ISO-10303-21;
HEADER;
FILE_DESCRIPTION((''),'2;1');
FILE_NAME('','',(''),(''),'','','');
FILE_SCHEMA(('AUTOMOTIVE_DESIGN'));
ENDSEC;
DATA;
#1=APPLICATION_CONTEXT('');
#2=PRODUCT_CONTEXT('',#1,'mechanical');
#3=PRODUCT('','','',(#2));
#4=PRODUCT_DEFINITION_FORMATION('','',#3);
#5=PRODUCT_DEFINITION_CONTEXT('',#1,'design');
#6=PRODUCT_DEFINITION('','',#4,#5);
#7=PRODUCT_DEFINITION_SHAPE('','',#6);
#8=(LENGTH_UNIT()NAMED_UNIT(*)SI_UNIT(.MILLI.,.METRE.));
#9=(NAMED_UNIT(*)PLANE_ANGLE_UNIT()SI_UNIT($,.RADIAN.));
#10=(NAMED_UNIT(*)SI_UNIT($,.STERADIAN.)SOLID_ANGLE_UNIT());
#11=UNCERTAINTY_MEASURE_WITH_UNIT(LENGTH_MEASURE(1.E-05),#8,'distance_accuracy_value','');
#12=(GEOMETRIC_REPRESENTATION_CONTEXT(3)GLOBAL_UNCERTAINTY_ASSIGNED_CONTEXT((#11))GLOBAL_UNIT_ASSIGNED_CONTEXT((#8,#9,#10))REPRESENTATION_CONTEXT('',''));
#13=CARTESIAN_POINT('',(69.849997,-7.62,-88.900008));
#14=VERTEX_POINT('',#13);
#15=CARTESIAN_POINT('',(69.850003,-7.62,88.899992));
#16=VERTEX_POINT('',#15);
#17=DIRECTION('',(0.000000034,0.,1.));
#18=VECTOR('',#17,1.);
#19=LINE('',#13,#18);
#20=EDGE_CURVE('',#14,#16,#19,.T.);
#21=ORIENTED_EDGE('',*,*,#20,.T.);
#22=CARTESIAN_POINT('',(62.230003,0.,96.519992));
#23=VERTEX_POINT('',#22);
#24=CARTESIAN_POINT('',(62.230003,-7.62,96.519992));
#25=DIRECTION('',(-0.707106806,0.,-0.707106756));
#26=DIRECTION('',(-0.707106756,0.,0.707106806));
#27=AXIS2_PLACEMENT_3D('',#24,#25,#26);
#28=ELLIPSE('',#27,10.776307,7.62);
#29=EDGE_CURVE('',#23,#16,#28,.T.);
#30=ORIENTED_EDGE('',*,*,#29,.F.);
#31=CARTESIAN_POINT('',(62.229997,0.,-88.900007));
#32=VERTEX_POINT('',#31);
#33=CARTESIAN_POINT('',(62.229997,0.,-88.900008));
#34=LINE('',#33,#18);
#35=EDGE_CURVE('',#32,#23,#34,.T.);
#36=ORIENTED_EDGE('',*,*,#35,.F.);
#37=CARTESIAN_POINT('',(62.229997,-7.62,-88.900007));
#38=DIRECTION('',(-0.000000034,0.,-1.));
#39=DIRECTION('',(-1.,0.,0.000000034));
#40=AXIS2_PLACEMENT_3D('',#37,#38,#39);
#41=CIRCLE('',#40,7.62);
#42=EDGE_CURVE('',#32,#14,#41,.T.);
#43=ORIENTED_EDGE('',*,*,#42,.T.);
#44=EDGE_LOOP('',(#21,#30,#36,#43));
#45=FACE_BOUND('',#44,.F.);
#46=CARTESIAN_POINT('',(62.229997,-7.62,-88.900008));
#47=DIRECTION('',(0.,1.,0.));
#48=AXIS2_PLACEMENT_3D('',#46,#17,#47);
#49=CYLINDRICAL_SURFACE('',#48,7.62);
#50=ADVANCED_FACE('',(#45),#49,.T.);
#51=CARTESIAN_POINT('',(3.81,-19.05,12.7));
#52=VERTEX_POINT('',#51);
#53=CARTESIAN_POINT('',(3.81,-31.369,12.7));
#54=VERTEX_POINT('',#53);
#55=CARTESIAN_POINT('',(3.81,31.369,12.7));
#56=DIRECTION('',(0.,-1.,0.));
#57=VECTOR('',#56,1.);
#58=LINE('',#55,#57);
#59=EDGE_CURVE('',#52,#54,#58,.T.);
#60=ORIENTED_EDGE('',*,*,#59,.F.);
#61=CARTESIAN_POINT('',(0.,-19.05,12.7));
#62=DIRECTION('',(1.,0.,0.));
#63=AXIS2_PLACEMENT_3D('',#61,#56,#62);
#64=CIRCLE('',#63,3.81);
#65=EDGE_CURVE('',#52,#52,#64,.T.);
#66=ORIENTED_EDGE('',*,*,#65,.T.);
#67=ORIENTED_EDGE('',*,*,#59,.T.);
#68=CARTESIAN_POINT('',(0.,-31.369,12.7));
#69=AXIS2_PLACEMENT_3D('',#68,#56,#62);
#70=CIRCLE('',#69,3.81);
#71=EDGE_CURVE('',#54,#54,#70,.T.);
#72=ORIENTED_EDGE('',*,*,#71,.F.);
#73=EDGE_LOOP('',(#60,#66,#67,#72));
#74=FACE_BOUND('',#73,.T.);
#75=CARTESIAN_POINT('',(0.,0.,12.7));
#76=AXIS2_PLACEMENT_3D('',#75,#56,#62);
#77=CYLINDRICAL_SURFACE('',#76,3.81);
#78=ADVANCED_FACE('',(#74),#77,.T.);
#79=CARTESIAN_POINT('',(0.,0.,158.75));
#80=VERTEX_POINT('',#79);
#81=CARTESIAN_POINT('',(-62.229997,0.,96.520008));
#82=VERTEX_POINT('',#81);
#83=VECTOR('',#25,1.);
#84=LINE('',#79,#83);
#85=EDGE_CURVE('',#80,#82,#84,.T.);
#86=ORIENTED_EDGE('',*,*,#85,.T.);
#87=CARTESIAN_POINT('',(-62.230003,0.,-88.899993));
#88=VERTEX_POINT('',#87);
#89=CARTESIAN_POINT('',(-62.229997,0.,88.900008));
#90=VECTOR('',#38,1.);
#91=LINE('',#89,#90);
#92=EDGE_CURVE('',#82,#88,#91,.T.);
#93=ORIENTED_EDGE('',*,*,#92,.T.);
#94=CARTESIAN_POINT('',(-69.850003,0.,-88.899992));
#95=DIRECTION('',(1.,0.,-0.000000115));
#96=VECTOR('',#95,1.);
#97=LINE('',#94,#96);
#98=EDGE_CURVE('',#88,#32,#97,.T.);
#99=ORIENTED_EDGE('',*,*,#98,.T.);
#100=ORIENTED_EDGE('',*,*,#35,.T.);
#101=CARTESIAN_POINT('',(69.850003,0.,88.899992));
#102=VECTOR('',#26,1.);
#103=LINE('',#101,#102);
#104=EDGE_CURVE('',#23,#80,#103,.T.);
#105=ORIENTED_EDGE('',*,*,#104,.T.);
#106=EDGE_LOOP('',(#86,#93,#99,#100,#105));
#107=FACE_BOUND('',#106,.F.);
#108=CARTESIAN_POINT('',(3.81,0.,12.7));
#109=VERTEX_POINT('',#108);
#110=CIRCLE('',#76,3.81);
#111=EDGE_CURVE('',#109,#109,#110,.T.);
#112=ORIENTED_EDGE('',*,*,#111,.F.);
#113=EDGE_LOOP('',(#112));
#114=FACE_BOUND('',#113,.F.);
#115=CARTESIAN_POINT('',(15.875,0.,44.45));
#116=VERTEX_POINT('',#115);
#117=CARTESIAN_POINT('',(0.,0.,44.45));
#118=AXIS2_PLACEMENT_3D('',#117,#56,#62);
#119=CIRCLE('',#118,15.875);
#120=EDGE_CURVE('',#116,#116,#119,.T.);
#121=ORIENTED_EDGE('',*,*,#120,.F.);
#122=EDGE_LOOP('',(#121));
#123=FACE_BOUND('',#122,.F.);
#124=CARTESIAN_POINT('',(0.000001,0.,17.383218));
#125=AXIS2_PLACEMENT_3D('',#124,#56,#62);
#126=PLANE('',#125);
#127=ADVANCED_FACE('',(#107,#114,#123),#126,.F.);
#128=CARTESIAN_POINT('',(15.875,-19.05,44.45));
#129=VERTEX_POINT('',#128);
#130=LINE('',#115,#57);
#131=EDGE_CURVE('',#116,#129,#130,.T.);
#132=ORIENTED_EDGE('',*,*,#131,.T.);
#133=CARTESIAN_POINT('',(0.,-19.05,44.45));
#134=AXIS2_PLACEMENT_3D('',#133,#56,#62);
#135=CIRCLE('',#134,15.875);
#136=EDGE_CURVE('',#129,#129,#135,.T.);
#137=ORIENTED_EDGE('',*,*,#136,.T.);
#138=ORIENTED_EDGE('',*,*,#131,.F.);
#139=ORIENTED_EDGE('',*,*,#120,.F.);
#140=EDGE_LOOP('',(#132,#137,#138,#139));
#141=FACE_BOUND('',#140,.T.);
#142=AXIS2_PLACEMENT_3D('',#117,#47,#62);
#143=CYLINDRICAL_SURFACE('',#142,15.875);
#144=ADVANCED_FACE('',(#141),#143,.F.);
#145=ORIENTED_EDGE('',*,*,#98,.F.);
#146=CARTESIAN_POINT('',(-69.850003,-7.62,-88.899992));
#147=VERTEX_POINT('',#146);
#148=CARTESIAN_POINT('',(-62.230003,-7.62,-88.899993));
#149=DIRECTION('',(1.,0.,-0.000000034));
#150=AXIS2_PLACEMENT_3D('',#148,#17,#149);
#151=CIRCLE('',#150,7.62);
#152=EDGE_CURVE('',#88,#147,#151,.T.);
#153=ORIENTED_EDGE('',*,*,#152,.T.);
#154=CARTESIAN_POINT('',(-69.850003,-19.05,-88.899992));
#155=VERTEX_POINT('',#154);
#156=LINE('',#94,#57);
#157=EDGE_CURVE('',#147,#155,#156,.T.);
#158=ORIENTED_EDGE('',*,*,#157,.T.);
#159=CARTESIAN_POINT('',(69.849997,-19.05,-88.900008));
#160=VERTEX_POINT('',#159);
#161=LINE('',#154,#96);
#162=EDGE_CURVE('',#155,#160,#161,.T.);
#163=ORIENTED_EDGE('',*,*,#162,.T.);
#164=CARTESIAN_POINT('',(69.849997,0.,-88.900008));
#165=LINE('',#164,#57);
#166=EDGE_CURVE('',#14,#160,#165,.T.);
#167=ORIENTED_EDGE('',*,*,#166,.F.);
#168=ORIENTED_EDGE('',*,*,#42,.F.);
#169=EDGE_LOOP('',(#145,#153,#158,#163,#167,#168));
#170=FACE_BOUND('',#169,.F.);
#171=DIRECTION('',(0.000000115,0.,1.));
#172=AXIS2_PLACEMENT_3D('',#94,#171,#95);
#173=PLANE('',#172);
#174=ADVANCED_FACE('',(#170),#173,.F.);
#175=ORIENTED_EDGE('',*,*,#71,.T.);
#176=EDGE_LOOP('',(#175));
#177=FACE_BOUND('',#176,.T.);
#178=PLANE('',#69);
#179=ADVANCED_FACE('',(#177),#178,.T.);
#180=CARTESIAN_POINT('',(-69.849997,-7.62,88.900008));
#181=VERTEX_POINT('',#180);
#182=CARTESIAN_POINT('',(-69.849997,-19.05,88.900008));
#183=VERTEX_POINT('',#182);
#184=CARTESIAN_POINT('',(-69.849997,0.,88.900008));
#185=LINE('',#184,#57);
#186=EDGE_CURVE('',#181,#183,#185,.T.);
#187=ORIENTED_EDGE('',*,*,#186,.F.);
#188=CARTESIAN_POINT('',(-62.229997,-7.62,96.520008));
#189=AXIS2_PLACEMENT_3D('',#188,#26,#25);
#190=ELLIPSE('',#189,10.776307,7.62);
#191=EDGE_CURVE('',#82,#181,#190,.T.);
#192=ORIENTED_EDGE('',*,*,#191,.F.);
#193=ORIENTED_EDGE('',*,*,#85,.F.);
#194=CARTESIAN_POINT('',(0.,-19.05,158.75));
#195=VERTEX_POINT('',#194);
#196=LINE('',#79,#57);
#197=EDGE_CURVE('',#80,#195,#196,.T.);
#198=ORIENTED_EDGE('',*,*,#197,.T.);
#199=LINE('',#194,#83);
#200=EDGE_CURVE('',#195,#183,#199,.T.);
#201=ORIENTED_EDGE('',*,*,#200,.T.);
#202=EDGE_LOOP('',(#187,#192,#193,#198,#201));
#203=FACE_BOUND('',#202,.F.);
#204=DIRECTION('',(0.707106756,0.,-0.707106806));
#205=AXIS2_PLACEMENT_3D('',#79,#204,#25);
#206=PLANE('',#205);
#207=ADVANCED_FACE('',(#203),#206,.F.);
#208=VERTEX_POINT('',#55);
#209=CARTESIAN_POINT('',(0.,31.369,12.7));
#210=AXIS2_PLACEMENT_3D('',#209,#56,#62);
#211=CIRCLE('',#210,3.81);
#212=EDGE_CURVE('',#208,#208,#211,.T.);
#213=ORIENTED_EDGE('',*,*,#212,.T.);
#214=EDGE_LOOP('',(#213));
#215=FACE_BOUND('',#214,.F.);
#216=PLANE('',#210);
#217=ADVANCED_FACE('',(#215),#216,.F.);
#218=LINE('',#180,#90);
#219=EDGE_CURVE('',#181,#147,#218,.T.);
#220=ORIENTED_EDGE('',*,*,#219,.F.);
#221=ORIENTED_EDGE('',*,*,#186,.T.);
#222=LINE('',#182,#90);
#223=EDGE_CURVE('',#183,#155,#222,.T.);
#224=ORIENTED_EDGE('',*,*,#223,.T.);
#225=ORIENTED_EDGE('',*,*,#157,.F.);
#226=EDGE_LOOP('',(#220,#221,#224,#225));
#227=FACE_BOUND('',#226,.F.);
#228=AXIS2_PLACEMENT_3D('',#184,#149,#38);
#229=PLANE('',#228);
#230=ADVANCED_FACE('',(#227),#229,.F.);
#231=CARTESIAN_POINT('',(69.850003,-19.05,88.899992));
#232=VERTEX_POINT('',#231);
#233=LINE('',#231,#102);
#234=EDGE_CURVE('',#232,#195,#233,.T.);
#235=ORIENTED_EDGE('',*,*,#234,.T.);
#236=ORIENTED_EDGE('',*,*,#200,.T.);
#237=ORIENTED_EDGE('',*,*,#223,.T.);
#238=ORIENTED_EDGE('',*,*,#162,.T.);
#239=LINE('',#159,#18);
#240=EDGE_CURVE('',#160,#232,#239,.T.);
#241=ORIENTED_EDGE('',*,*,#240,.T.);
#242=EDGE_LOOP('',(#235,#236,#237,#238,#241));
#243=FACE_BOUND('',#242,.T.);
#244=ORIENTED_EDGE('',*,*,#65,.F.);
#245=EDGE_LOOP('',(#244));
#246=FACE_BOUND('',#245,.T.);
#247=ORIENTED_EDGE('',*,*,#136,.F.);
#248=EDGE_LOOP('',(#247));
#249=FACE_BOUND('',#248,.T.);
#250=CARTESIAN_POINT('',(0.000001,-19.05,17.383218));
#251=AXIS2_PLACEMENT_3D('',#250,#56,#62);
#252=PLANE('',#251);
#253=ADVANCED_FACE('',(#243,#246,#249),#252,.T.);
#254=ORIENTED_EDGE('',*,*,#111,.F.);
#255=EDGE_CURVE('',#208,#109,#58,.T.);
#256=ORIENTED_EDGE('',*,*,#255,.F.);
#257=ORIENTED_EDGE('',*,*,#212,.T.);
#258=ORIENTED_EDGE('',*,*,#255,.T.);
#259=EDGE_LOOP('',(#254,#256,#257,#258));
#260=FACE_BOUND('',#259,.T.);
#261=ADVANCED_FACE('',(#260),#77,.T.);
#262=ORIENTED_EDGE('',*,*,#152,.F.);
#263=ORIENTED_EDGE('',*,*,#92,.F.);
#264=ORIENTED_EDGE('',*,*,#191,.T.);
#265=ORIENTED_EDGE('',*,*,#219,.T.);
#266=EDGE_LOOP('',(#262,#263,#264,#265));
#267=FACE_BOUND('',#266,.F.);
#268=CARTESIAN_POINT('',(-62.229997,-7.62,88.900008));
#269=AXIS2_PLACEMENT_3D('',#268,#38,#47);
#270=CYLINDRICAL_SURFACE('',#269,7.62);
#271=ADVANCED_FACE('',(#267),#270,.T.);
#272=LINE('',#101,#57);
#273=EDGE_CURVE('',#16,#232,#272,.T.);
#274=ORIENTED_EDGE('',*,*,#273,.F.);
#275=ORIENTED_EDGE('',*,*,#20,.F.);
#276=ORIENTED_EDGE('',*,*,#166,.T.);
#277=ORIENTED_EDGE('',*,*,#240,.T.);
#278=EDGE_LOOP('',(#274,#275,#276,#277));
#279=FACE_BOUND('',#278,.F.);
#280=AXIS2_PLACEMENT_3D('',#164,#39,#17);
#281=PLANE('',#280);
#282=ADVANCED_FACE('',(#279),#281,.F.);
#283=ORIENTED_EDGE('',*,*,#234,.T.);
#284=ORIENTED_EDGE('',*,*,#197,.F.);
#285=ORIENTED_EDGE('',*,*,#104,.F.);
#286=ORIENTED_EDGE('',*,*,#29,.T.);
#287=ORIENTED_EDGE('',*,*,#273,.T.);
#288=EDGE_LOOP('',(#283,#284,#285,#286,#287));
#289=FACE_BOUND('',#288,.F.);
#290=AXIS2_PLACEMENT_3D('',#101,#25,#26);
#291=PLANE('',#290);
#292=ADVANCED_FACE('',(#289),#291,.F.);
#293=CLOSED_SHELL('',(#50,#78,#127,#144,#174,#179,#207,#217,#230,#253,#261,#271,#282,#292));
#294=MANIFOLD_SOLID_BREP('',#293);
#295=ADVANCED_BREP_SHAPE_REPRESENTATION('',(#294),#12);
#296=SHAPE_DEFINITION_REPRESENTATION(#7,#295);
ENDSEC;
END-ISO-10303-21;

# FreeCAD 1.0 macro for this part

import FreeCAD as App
import Part
import Sketcher
from FreeCAD import Vector
Q = App.Units.Quantity


def edges_at(feature, points):
    """Names of the edges that pass closest to the given points."""
    edges = feature.Shape.Edges
    near = lambda p: min(range(len(edges)), key=lambda i: edges[i].distToShape(Part.Vertex(*p))[0])
    return sorted({f"Edge{near(p) + 1}" for p in points})

doc = App.newDocument("Part")
body = doc.addObject("PartDesign::Body", "Body")

# Sketch on XZ plane
sketch1 = body.newObject("Sketcher::SketchObject", "Sketch")
sketch1.AttachmentSupport = (doc.getObject("XZ_Plane"), [""])
sketch1.MapMode = "FlatFace"
sketch1.addGeometry([
    Part.LineSegment(Vector(-69.850003, -88.899992, 0), Vector(69.849997, -88.900008, 0)),  # 0
    Part.LineSegment(Vector(69.849997, -88.900008, 0), Vector(69.850003, 88.899992, 0)),  # 1
    Part.LineSegment(Vector(69.850003, 88.899992, 0), Vector(0, 158.75, 0)),  # 2
    Part.LineSegment(Vector(0, 158.75, 0), Vector(-69.849997, 88.900008, 0)),  # 3
    Part.LineSegment(Vector(-69.849997, 88.900008, 0), Vector(-69.850003, -88.899992, 0)),  # 4
    Part.Circle(Vector(0, 12.7, 0), Vector(0, 0, 1), 3.81),  # 5
    Part.Circle(Vector(0, 44.45, 0), Vector(0, 0, 1), 15.875),  # 6
], False)
sketch1.addConstraint([
    Sketcher.Constraint("Coincident", 0, 2, 1, 1),
    Sketcher.Constraint("Coincident", 1, 2, 2, 1),
    Sketcher.Constraint("Coincident", 2, 2, 3, 1),
    Sketcher.Constraint("Coincident", 3, 2, 4, 1),
    Sketcher.Constraint("Coincident", 4, 2, 0, 1),
    Sketcher.Constraint("Symmetric", 0, 2, 3, 2, -1, 1),
    Sketcher.Constraint("Symmetric", 1, 2, 4, 2, -1, 1),
    Sketcher.Constraint("PointOnObject", 5, 3, -2),
    Sketcher.Constraint("PointOnObject", 6, 3, -2),
    Sketcher.Constraint("PointOnObject", 2, 2, -2),
    Sketcher.Constraint("Perpendicular", 0, 1),
    Sketcher.Constraint("Perpendicular", 2, 3),
    Sketcher.Constraint("Diameter", 5, Q("0.3 in")),
    Sketcher.Constraint("Diameter", 6, Q("1.25 in")),
    Sketcher.Constraint("Distance", 1, Q("7 in")),
    Sketcher.Constraint("Angle", 0, Q("-0.000007 deg")),
    Sketcher.Constraint("Distance", 0, Q("5.5 in")),
    Sketcher.Constraint("DistanceY", -1, 1, 5, 3, Q("0.5 in")),
    Sketcher.Constraint("DistanceY", 6, 3, 2, 2, Q("4.5 in")),
])
pad1 = body.newObject("PartDesign::Pad", "Pad")
pad1.Profile = sketch1
pad1.Length = Q("0.75 in")

# Sketch on XZ plane
sketch2 = body.newObject("Sketcher::SketchObject", "Sketch001")
sketch2.AttachmentSupport = (doc.getObject("XZ_Plane"), [""])
sketch2.MapMode = "FlatFace"
sketch2.addGeometry(Part.Circle(Vector(0, 12.7, 0), Vector(0, 0, 1), 3.81), False)
sketch2.addConstraint([
    Sketcher.Constraint("PointOnObject", 0, 3, -2),
    Sketcher.Constraint("Diameter", 0, Q("0.3 in")),
    Sketcher.Constraint("DistanceY", -1, 1, 0, 3, Q("0.5 in")),
])
pad2 = body.newObject("PartDesign::Pad", "Pad001")
pad2.Profile = sketch2
pad2.Length = Q("2.47 in")
pad2.Midplane = True
doc.recompute()

fillet = body.newObject("PartDesign::Fillet", "Fillet")
fillet.Base = (pad2, edges_at(pad2, [(69.85, 0, 0)]))
fillet.Radius = Q("0.3 in")
doc.recompute()

fillet2 = body.newObject("PartDesign::Fillet", "Fillet001")
fillet2.Base = (fillet, edges_at(fillet, [(-69.85, 0, 0)]))
fillet2.Radius = Q("0.3 in")

doc.recompute()
